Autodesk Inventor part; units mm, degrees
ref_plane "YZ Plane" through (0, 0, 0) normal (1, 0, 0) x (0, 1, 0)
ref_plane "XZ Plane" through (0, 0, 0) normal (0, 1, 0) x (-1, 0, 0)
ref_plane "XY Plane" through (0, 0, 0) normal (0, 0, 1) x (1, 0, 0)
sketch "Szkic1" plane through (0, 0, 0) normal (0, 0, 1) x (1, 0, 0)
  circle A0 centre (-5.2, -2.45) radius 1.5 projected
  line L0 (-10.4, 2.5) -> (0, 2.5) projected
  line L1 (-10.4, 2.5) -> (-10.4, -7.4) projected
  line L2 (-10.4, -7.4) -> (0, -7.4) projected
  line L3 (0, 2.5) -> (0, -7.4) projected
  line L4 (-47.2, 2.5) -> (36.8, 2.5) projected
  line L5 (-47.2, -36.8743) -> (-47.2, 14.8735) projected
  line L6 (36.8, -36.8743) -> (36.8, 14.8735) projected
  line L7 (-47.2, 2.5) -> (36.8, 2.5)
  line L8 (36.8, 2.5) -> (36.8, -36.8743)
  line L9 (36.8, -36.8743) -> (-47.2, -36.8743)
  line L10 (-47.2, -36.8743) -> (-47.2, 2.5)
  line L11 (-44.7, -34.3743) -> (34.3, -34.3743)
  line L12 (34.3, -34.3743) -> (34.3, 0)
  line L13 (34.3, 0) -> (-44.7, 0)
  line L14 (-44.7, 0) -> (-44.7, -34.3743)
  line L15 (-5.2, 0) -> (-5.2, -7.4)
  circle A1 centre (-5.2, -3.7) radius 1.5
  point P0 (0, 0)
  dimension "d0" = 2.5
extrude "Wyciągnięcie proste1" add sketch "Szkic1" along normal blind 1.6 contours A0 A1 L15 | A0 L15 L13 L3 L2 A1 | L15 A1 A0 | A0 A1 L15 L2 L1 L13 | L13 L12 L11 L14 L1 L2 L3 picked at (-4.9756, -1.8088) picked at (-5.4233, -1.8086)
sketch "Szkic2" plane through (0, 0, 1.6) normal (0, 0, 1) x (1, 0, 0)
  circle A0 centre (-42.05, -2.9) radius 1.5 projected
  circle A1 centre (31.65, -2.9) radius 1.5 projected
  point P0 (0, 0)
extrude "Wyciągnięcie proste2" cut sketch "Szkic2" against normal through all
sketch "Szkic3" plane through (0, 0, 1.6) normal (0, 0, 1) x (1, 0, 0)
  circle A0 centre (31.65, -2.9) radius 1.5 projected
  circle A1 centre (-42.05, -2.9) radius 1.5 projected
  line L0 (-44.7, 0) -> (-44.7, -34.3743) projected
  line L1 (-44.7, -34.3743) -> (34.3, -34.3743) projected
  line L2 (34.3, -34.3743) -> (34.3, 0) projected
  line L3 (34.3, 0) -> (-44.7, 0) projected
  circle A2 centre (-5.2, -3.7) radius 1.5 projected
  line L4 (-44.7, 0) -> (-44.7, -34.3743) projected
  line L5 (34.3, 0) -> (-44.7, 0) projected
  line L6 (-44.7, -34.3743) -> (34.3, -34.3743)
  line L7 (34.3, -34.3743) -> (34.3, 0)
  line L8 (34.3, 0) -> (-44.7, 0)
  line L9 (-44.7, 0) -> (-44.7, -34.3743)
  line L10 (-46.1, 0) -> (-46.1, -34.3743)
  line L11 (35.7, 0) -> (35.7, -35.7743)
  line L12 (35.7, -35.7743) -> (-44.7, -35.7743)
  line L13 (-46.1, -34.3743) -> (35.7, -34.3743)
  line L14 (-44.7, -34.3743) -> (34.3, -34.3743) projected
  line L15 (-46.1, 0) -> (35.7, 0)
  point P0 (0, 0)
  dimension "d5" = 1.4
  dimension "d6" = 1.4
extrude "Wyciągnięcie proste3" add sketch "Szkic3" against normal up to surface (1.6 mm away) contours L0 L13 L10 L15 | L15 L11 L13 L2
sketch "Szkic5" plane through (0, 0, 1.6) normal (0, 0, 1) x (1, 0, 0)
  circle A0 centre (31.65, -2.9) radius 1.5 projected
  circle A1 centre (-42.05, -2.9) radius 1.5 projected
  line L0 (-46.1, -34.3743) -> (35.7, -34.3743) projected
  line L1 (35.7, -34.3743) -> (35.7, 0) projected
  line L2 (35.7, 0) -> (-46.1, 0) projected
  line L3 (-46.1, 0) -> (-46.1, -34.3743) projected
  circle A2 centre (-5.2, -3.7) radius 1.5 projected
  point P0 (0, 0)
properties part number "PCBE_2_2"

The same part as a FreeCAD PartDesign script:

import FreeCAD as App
import Part
import Sketcher
from FreeCAD import Vector
Q = App.Units.Quantity


def add_polygon(sketch, points):
    """Adds a closed chain of lines whose ends are joined by coincident constraints."""
    first, n = sketch.GeometryCount, len(points)
    for a, b in zip(points, points[1:] + points[:1]):
        sketch.addGeometry(Part.LineSegment(App.Vector(*a, 0), App.Vector(*b, 0)), False)
    for i in range(n):
        sketch.addConstraint(Sketcher.Constraint("Coincident", first + i, 2, first + (i + 1) % n, 1))

doc = App.newDocument("Part")
params = doc.addObject("Spreadsheet::Sheet", "Params")
for row, (alias, value) in enumerate([
    ("sketch1_diameter", "3 mm"),
    ("sketch1_width", "79 mm"),
    ("pad1_length", "1.6 mm"),
    ("sketch2_diameter", "3 mm"),
    ("sketch3_width", "1.4 mm"),
    ("pad2_length", "1.6 mm"),
], start=1):
    params.set(f"A{row}", alias)
    params.set(f"B{row}", "=" + value)
    params.setAlias(f"B{row}", alias)

body = doc.addObject("PartDesign::Body", "Body")

# Sketch on XY plane
sketch1 = body.newObject("Sketcher::SketchObject", "Sketch")
sketch1.AttachmentSupport = (doc.getObject("XY_Plane"), [""])
sketch1.MapMode = "FlatFace"
add_polygon(sketch1, [(-44.7, 0), (-44.7, -34.3743), (34.3, -34.3743), (34.3, 0)])  # lines 0-3
sketch1.addGeometry(Part.Circle(Vector(-5.2, -3.7, 0), Vector(0, 0, 1), 1.5), False)  # 4
sketch1.addConstraint([
    Sketcher.Constraint("Vertical", 0),
    Sketcher.Constraint("Horizontal", 1),
    Sketcher.Constraint("Vertical", 2),
    Sketcher.Constraint("Horizontal", 3),
    Sketcher.Constraint("PointOnObject", 2, 2, -1),
    Sketcher.Constraint("Diameter", 4, Q("3 mm")),
    Sketcher.Constraint("DistanceX", 1, 1, 1, 2, Q("79 mm")),
    Sketcher.Constraint("DistanceX", 4, 3, -1, 1, Q("5.2 mm")),
    Sketcher.Constraint("DistanceY", 4, 3, -1, 1, Q("3.7 mm")),
    Sketcher.Constraint("DistanceX", 0, 2, -1, 1, Q("44.7 mm")),
    Sketcher.Constraint("DistanceY", 0, 2, 0, 1, Q("34.3743 mm")),
])
sketch1.setExpression("Constraints[9]", "Params.sketch1_diameter")
sketch1.setExpression("Constraints[10]", "Params.sketch1_width")
pad1 = body.newObject("PartDesign::Pad", "Pad")
pad1.Profile = sketch1
pad1.setExpression("Length", "Params.pad1_length")

# Sketch on XY plane
sketch2 = body.newObject("Sketcher::SketchObject", "Sketch001")
sketch2.AttachmentSupport = (doc.getObject("XY_Plane"), [""])
sketch2.MapMode = "FlatFace"
sketch2.AttachmentOffset = App.Placement(Vector(0, 0, 1.6), App.Rotation())
sketch2.addGeometry([
    Part.Circle(Vector(-42.05, -2.9, 0), Vector(0, 0, 1), 1.5),
    Part.Circle(Vector(31.65, -2.9, 0), Vector(0, 0, 1), 1.5),
], False)
sketch2.addConstraint([
    Sketcher.Constraint("Equal", 0, 1),
    Sketcher.Constraint("Horizontal", 0, 3, 1, 3),
    Sketcher.Constraint("Diameter", 0, Q("3 mm")),
    Sketcher.Constraint("DistanceY", 0, 3, -1, 1, Q("2.9 mm")),
    Sketcher.Constraint("DistanceX", 0, 3, 1, 3, Q("73.7 mm")),
    Sketcher.Constraint("DistanceX", 0, 3, -1, 1, Q("42.05 mm")),
])
sketch2.setExpression("Constraints[2]", "Params.sketch2_diameter")
pocket1 = body.newObject("PartDesign::Pocket", "Pocket")
pocket1.Profile = sketch2
pocket1.Type = "ThroughAll"

# Sketch on XY plane
sketch3 = body.newObject("Sketcher::SketchObject", "Sketch002")
sketch3.AttachmentSupport = (doc.getObject("XY_Plane"), [""])
sketch3.MapMode = "FlatFace"
sketch3.AttachmentOffset = App.Placement(Vector(0, 0, 1.6), App.Rotation())
add_polygon(sketch3, [(-44.7, -34.3743), (-44.7, 0), (-46.1, 0), (-46.1, -34.3743)])  # lines 0-3
add_polygon(sketch3, [(35.7, 0), (34.3, 0), (34.3, -34.3743), (35.7, -34.3743)])  # lines 4-7
sketch3.addConstraint([
    Sketcher.Constraint("Vertical", 0),
    Sketcher.Constraint("Horizontal", 1),
    Sketcher.Constraint("Vertical", 2),
    Sketcher.Constraint("Horizontal", 3),
    Sketcher.Constraint("Horizontal", 4),
    Sketcher.Constraint("Vertical", 5),
    Sketcher.Constraint("Horizontal", 6),
    Sketcher.Constraint("Vertical", 7),
    Sketcher.Constraint("PointOnObject", 0, 2, -1),
    Sketcher.Constraint("PointOnObject", 4, 2, -1),
    Sketcher.Constraint("Horizontal", 3, 2, 5, 2),
    Sketcher.Constraint("Equal", 3, 4),
    Sketcher.Constraint("DistanceX", 1, 2, 1, 1, Q("1.4 mm")),
    Sketcher.Constraint("DistanceX", 0, 2, 4, 2, Q("79 mm")),
    Sketcher.Constraint("DistanceX", 0, 2, -1, 1, Q("44.7 mm")),
    Sketcher.Constraint("DistanceY", 0, 1, 0, 2, Q("34.3743 mm")),
])
sketch3.setExpression("Constraints[20]", "Params.sketch3_width")
pad2 = body.newObject("PartDesign::Pad", "Pad001")
pad2.Profile = sketch3
pad2.setExpression("Length", "Params.pad2_length")
pad2.Reversed = True

doc.recompute()
